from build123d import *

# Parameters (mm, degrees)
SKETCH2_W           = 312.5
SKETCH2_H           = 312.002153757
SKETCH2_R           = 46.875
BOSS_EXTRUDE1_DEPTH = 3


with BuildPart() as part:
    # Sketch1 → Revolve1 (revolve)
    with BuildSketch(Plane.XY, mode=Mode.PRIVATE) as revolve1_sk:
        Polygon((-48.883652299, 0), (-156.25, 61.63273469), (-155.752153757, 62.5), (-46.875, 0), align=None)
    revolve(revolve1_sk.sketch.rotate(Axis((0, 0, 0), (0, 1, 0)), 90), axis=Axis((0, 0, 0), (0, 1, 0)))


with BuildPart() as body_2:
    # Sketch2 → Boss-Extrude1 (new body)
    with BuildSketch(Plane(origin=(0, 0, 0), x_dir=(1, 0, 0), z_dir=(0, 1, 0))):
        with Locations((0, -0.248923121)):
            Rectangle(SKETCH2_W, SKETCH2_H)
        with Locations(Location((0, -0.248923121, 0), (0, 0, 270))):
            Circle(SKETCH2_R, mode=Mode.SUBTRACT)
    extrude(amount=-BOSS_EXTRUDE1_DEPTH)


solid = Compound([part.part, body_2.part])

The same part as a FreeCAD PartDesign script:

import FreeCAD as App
import Part
import Sketcher

V = App.Vector
Q = App.Units.Quantity


def add_polygon(sketch, points):
    """Adds a closed chain of lines whose ends are joined by coincident constraints."""
    first, n = sketch.GeometryCount, len(points)
    for a, b in zip(points, points[1:] + points[:1]):
        sketch.addGeometry(Part.LineSegment(App.Vector(*a, 0), App.Vector(*b, 0)), False)
    for i in range(n):
        sketch.addConstraint(Sketcher.Constraint("Coincident", first + i, 2, first + (i + 1) % n, 1))

doc = App.newDocument("Part")
body = doc.addObject("PartDesign::Body", "Body")

sketch1 = body.newObject("Sketcher::SketchObject", "Sketch")
sketch1.AttachmentSupport = (doc.getObject("XY_Plane"), [""])
sketch1.MapMode = "FlatFace"
add_polygon(sketch1, [(-156.2, 61.6), (-48.9, 0), (-46.9, 0), (-155.8, 62.5)])
sketch1.addConstraint(Sketcher.Constraint("Horizontal", 1))
sketch1.addConstraint(Sketcher.Constraint("PointOnObject", 0, 2, -1))
sketch1.addConstraint(Sketcher.Constraint("Parallel", 0, 2))
sketch1.addConstraint(Sketcher.Constraint("Perpendicular", 2, 3))
sketch1.addConstraint(Sketcher.Constraint("Distance", 3, Q("1 mm")))
sketch1.addConstraint(Sketcher.Constraint("DistanceY", -1, 1, 2, 2, Q("62.5 mm")))
sketch1.addConstraint(Sketcher.Constraint("DistanceX", 3, 2, -1, 1, Q("156.25 mm")))
sketch1.addConstraint(Sketcher.Constraint("DistanceX", 1, 2, -1, 1, Q("46.875 mm")))
revolution = body.newObject("PartDesign::Revolution", "Revolution")
revolution.Profile = sketch1
revolution.ReferenceAxis = (sketch1, ["V_Axis"])
revolution.Angle = 360
body2 = doc.addObject("PartDesign::Body", "Body001")

sketch2 = body2.newObject("Sketcher::SketchObject", "Sketch001")
sketch2.AttachmentSupport = (doc.getObject("XZ_Plane001"), [""])
sketch2.MapMode = "FlatFace"
add_polygon(sketch2, [(-156, -156), (-156, 156), (156, 156), (156, -156)])
sketch2.addGeometry(Part.Circle(V(0, 0, 0), V(0, 0, 1), 47), False)
sketch2.addConstraint(Sketcher.Constraint("Vertical", 0))
sketch2.addConstraint(Sketcher.Constraint("Horizontal", 1))
sketch2.addConstraint(Sketcher.Constraint("Vertical", 2))
sketch2.addConstraint(Sketcher.Constraint("Horizontal", 3))
sketch2.addConstraint(Sketcher.Constraint("PointOnObject", 4, 3, -2))
sketch2.addConstraint(Sketcher.Constraint("Diameter", 4, Q("93.75 mm")))
sketch2.addConstraint(Sketcher.Constraint("DistanceX", 1, 1, 1, 2, Q("312.5 mm")))
sketch2.addConstraint(Sketcher.Constraint("DistanceX", 0, 2, -1, 1, Q("156.25 mm")))
sketch2.addConstraint(Sketcher.Constraint("DistanceY", -1, 1, 0, 2, Q("156.25 mm")))
sketch2.addConstraint(Sketcher.Constraint("DistanceY", 0, 1, 0, 2, Q("312.002154 mm")))
sketch2.addConstraint(Sketcher.Constraint("DistanceY", -1, 1, 4, 3, Q("0.248923 mm")))
pad1 = body2.newObject("PartDesign::Pad", "Pad")
pad1.Profile = sketch2
pad1.Length = 3

doc.recompute()
